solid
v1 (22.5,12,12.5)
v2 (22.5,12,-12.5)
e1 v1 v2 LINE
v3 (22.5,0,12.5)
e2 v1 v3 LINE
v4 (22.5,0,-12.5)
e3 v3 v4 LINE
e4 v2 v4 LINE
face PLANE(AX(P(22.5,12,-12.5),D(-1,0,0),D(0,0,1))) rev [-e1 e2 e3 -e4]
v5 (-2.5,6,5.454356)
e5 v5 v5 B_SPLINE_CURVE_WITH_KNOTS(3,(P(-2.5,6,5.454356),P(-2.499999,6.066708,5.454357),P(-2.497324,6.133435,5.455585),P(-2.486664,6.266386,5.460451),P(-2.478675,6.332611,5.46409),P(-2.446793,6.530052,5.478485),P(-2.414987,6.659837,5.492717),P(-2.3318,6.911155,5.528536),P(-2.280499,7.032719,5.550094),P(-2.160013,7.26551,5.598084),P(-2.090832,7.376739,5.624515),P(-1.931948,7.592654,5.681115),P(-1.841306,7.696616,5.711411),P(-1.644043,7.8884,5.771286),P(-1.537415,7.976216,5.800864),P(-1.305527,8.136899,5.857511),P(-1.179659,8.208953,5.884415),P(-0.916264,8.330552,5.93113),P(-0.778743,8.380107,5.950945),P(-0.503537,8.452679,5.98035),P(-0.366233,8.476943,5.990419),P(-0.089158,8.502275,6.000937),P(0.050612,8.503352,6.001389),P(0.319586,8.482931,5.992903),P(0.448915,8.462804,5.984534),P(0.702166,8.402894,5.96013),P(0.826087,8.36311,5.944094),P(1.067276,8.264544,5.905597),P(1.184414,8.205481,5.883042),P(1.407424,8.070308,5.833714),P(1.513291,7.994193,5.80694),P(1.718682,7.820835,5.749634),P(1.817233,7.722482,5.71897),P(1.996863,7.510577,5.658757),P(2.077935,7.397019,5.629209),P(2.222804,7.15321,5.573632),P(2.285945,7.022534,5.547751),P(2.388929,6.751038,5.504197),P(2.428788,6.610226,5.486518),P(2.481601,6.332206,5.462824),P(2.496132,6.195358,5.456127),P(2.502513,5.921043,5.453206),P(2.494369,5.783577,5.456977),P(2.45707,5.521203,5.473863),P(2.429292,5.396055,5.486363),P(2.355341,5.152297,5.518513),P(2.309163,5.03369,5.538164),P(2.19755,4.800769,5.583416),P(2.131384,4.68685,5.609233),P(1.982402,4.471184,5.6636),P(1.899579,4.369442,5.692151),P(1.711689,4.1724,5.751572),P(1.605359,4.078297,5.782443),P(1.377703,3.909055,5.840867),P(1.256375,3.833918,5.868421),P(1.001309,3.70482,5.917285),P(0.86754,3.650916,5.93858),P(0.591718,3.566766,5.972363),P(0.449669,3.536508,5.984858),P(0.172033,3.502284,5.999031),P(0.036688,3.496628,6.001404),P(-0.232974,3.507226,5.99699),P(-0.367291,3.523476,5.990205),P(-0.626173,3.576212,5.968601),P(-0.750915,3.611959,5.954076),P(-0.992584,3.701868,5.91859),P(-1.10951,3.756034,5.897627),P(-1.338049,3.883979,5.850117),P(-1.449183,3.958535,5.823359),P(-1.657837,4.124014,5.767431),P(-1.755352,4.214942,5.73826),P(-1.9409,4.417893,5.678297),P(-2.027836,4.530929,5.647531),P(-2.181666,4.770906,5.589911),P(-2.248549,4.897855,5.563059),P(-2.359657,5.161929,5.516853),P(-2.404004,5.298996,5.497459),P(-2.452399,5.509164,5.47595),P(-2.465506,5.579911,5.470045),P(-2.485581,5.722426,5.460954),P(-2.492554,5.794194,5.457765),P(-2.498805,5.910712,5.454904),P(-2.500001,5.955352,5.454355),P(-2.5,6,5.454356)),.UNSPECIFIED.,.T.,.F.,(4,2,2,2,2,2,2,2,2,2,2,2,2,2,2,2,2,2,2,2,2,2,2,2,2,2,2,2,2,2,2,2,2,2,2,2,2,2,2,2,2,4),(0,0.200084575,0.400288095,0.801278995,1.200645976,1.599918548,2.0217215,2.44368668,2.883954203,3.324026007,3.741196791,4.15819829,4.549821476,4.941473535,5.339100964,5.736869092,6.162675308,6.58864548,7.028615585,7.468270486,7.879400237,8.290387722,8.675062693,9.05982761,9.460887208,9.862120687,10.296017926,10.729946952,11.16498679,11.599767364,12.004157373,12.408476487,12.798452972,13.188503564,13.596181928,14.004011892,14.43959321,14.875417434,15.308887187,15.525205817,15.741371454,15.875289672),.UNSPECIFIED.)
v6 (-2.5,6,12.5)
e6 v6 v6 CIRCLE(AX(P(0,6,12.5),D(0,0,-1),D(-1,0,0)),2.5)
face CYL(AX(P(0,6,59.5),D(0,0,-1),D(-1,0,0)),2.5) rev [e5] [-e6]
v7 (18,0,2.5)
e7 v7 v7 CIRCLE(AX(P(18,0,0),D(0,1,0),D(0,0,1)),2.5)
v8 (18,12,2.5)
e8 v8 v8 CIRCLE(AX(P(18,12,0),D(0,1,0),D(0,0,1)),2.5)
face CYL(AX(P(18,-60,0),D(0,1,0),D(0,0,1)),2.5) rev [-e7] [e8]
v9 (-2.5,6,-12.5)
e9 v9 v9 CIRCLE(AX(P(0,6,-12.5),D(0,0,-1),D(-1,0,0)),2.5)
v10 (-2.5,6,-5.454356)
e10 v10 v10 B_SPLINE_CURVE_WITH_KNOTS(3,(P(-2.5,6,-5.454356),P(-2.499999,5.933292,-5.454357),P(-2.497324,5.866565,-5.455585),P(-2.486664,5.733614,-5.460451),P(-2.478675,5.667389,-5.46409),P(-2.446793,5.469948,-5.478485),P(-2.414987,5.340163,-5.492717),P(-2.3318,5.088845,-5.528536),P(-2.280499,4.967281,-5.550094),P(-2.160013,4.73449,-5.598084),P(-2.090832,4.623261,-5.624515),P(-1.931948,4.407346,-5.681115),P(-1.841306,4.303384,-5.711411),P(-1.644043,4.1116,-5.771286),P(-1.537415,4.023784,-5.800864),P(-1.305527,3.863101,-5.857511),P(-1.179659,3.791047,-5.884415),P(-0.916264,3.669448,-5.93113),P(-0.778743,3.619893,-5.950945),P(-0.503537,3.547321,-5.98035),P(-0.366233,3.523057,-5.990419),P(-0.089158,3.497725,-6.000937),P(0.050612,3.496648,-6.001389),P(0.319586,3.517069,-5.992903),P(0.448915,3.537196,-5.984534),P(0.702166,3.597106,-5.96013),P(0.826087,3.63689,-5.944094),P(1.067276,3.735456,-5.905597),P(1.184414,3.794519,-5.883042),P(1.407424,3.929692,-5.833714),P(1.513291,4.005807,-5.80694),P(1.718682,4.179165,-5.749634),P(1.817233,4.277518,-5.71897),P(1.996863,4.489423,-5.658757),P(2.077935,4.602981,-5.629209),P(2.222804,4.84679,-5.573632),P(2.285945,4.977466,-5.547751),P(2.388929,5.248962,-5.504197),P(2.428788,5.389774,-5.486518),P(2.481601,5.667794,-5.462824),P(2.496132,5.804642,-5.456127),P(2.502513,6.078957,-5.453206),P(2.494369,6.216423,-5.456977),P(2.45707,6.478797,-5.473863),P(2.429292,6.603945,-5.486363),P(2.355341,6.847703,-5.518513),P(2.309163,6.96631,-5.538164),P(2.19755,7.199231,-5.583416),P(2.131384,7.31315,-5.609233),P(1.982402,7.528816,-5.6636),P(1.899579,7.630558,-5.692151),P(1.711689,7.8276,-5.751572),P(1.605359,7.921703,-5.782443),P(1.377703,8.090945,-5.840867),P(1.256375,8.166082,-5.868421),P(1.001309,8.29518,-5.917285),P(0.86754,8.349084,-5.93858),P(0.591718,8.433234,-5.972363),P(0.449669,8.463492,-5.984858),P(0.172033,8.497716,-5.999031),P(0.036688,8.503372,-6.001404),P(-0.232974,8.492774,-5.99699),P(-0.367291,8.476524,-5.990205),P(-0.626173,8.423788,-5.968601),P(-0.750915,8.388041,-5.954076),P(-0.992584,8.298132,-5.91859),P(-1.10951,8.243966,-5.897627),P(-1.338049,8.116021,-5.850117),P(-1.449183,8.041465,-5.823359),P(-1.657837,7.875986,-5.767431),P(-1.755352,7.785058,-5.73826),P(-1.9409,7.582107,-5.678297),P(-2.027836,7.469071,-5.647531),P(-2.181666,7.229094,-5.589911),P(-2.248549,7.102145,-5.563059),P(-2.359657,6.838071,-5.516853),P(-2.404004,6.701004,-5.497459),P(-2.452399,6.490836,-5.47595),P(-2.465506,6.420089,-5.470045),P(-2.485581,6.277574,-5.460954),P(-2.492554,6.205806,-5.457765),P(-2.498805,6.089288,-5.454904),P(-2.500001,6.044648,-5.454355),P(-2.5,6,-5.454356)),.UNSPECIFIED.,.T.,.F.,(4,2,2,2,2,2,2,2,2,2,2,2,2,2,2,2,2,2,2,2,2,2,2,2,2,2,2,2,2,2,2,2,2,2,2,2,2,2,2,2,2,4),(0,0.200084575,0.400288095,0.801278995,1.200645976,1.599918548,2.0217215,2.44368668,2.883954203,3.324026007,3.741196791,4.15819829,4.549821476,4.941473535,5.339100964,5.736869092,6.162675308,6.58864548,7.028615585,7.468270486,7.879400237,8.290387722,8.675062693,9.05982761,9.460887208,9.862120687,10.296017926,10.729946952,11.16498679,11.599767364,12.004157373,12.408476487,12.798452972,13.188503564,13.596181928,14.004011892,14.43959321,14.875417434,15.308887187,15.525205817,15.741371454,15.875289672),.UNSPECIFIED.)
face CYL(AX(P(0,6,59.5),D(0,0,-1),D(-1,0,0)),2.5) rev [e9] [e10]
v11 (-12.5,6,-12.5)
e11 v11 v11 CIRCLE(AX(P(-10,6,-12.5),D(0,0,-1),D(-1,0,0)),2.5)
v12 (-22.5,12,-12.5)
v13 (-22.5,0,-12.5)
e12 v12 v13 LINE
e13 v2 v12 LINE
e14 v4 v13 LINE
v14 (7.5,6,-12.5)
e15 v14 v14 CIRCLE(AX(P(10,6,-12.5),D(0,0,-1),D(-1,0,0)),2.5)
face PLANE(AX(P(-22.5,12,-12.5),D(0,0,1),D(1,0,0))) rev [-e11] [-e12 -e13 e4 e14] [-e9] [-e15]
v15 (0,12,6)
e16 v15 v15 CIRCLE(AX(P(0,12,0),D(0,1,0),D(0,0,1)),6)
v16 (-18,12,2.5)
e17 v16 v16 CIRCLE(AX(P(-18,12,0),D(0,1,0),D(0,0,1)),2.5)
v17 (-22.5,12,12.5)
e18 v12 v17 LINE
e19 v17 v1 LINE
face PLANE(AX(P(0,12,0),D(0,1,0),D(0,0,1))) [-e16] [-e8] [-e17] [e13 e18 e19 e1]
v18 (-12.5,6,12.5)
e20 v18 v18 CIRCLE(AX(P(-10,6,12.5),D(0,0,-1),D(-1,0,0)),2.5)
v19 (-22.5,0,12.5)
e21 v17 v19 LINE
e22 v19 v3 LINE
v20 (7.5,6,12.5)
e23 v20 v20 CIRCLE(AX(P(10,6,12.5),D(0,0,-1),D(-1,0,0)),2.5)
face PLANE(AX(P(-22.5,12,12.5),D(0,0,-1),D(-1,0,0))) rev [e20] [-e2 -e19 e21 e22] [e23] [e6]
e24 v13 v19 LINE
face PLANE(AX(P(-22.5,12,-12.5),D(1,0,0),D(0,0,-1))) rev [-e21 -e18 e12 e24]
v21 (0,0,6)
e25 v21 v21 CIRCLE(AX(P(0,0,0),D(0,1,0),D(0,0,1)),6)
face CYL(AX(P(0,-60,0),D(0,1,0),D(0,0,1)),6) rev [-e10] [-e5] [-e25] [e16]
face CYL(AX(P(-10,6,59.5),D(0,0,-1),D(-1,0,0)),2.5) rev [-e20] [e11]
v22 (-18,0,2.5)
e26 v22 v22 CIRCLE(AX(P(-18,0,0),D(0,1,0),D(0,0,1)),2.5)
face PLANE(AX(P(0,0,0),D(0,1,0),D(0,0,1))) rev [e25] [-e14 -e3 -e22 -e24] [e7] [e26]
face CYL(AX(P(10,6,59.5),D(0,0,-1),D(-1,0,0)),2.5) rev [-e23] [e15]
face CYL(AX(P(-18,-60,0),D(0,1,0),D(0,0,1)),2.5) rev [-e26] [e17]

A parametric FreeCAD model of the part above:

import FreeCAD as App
import Part
import Sketcher
Q = App.Units.Quantity

doc = App.newDocument("Part")
params = doc.addObject("Spreadsheet::Sheet", "Params")
for row, (alias, value) in enumerate([
    ("sketch1_width", "45 mm"),
    ("sketch1_height", "25 mm"),
    ("pad1_length", "12 mm"),
    ("sketch2_diameter", "5 mm"),
    ("pocket1_length", "12 mm"),
    ("sketch3_diameter", "5 mm"),
    ("pocket2_length", "72 mm"),
    ("sketch4_diameter", "5 mm"),
    ("pocket3_length", "72 mm"),
    ("sketch5_diameter", "12 mm"),
    ("pocket4_length", "72 mm"),
    ("sketch6_diameter", "5 mm"),
    ("pocket5_length", "72 mm"),
    ("sketch7_diameter", "5 mm"),
    ("pad2_length", "12 mm"),
], start=1):
    params.set(f"A{row}", alias)
    params.set(f"B{row}", "=" + value)
    params.setAlias(f"B{row}", alias)

body = doc.addObject("PartDesign::Body", "Body")

# Sketch on XZ plane
sketch1 = doc.addObject("Sketcher::SketchObject", "Sketch")
body.addObject(sketch1)
sketch1.AttachmentSupport = (doc.XZ_Plane, [""])
sketch1.MapMode = "FlatFace"
sketch1.addGeometry(Part.LineSegment(App.Vector(-22, -12, 0), App.Vector(-22, 12, 0)), False)
sketch1.addGeometry(Part.LineSegment(App.Vector(-22, 12, 0), App.Vector(22, 12, 0)), False)
sketch1.addGeometry(Part.LineSegment(App.Vector(22, 12, 0), App.Vector(22, -12, 0)), False)
sketch1.addGeometry(Part.LineSegment(App.Vector(22, -12, 0), App.Vector(-22, -12, 0)), False)
sketch1.addConstraint(Sketcher.Constraint("Coincident", 0, 2, 1, 1))
sketch1.addConstraint(Sketcher.Constraint("Coincident", 1, 2, 2, 1))
sketch1.addConstraint(Sketcher.Constraint("Coincident", 2, 2, 3, 1))
sketch1.addConstraint(Sketcher.Constraint("Coincident", 3, 2, 0, 1))
sketch1.addConstraint(Sketcher.Constraint("Vertical", 0))
sketch1.addConstraint(Sketcher.Constraint("Horizontal", 1))
sketch1.addConstraint(Sketcher.Constraint("Vertical", 2))
sketch1.addConstraint(Sketcher.Constraint("Horizontal", 3))
sketch1.addConstraint(Sketcher.Constraint("Symmetric", 0, 2, 2, 2, -1, 1))
sketch1.addConstraint(Sketcher.Constraint("DistanceX", 1, 1, 1, 2, Q("45 mm")))
sketch1.addConstraint(Sketcher.Constraint("DistanceY", 0, 1, 0, 2, Q("25 mm")))
sketch1.setExpression("Constraints[9]", "Params.sketch1_width")
sketch1.setExpression("Constraints[10]", "Params.sketch1_height")
pad1 = doc.addObject("PartDesign::Pad", "Pad")
body.addObject(pad1)
pad1.Profile = sketch1
pad1.setExpression("Length", "Params.pad1_length")
pad1.Reversed = True

# Sketch on XZ plane
sketch2 = doc.addObject("Sketcher::SketchObject", "Sketch001")
body.addObject(sketch2)
sketch2.AttachmentSupport = (doc.XZ_Plane, [""])
sketch2.MapMode = "FlatFace"
sketch2.AttachmentOffset = App.Placement(App.Vector(0, 0, -12), App.Rotation())
sketch2.addGeometry(Part.Circle(App.Vector(-18, 7.5, 0), App.Vector(0, 0, 1), 2.5), False)
sketch2.addGeometry(Part.Circle(App.Vector(-18, -7.5, 0), App.Vector(0, 0, 1), 2.5), False)
sketch2.addGeometry(Part.Circle(App.Vector(18, 7.5, 0), App.Vector(0, 0, 1), 2.5), False)
sketch2.addGeometry(Part.Circle(App.Vector(18, -7.5, 0), App.Vector(0, 0, 1), 2.5), False)
sketch2.addConstraint(Sketcher.Constraint("Equal", 0, 1))
sketch2.addConstraint(Sketcher.Constraint("Equal", 1, 2))
sketch2.addConstraint(Sketcher.Constraint("Equal", 2, 3))
sketch2.addConstraint(Sketcher.Constraint("Symmetric", 1, 3, 2, 3, -1, 1))
sketch2.addConstraint(Sketcher.Constraint("Symmetric", 0, 3, 3, 3, -1, 1))
sketch2.addConstraint(Sketcher.Constraint("Symmetric", 0, 3, 2, 3, -2))
sketch2.addConstraint(Sketcher.Constraint("Diameter", 0, Q("5 mm")))
sketch2.addConstraint(Sketcher.Constraint("DistanceX", 0, 3, -1, 1, Q("18 mm")))
sketch2.addConstraint(Sketcher.Constraint("DistanceY", 1, 3, 0, 3, Q("15 mm")))
sketch2.setExpression("Constraints[6]", "Params.sketch2_diameter")
pocket1 = doc.addObject("PartDesign::Pocket", "Pocket")
body.addObject(pocket1)
pocket1.Profile = sketch2
pocket1.setExpression("Length", "Params.pocket1_length")
pocket1.Reversed = True

# Sketch on XY plane
sketch3 = doc.addObject("Sketcher::SketchObject", "Sketch002")
body.addObject(sketch3)
sketch3.AttachmentSupport = (doc.XY_Plane, [""])
sketch3.MapMode = "FlatFace"
sketch3.AttachmentOffset = App.Placement(App.Vector(0, 0, -12.5), App.Rotation())
sketch3.addGeometry(Part.Circle(App.Vector(0, 6, 0), App.Vector(0, 0, 1), 2.5), False)
sketch3.addConstraint(Sketcher.Constraint("PointOnObject", 0, 3, -2))
sketch3.addConstraint(Sketcher.Constraint("Diameter", 0, Q("5 mm")))
sketch3.addConstraint(Sketcher.Constraint("DistanceY", -1, 1, 0, 3, Q("6 mm")))
sketch3.setExpression("Constraints[1]", "Params.sketch3_diameter")
pocket2 = doc.addObject("PartDesign::Pocket", "Pocket001")
body.addObject(pocket2)
pocket2.Profile = sketch3
pocket2.setExpression("Length", "Params.pocket2_length")
pocket2.Reversed = True

# Sketch on XY plane
sketch4 = doc.addObject("Sketcher::SketchObject", "Sketch003")
body.addObject(sketch4)
sketch4.AttachmentSupport = (doc.XY_Plane, [""])
sketch4.MapMode = "FlatFace"
sketch4.AttachmentOffset = App.Placement(App.Vector(0, 0, -12.5), App.Rotation())
sketch4.addGeometry(Part.Circle(App.Vector(-10, 6, 0), App.Vector(0, 0, 1), 2.5), False)
sketch4.addGeometry(Part.Circle(App.Vector(10, 6, 0), App.Vector(0, 0, 1), 2.5), False)
sketch4.addConstraint(Sketcher.Constraint("Equal", 0, 1))
sketch4.addConstraint(Sketcher.Constraint("Symmetric", 0, 3, 1, 3, -2))
sketch4.addConstraint(Sketcher.Constraint("Diameter", 0, Q("5 mm")))
sketch4.addConstraint(Sketcher.Constraint("DistanceX", 0, 3, -1, 1, Q("10 mm")))
sketch4.addConstraint(Sketcher.Constraint("DistanceY", -1, 1, 0, 3, Q("6 mm")))
sketch4.setExpression("Constraints[2]", "Params.sketch4_diameter")
pocket3 = doc.addObject("PartDesign::Pocket", "Pocket002")
body.addObject(pocket3)
pocket3.Profile = sketch4
pocket3.setExpression("Length", "Params.pocket3_length")
pocket3.Reversed = True

# Sketch on XZ plane
sketch5 = doc.addObject("Sketcher::SketchObject", "Sketch004")
body.addObject(sketch5)
sketch5.AttachmentSupport = (doc.XZ_Plane, [""])
sketch5.MapMode = "FlatFace"
sketch5.AttachmentOffset = App.Placement(App.Vector(0, 0, -12), App.Rotation())
sketch5.addGeometry(Part.Circle(App.Vector(0, 0, 0), App.Vector(0, 0, 1), 6), False)
sketch5.addConstraint(Sketcher.Constraint("Coincident", 0, 3, -1, 1))
sketch5.addConstraint(Sketcher.Constraint("Diameter", 0, Q("12 mm")))
sketch5.setExpression("Constraints[1]", "Params.sketch5_diameter")
pocket4 = doc.addObject("PartDesign::Pocket", "Pocket003")
body.addObject(pocket4)
pocket4.Profile = sketch5
pocket4.setExpression("Length", "Params.pocket4_length")
pocket4.Reversed = True

# Sketch on XZ plane
sketch6 = doc.addObject("Sketcher::SketchObject", "Sketch005")
body.addObject(sketch6)
sketch6.AttachmentSupport = (doc.XZ_Plane, [""])
sketch6.MapMode = "FlatFace"
sketch6.AttachmentOffset = App.Placement(App.Vector(0, 0, -12), App.Rotation())
sketch6.addGeometry(Part.Circle(App.Vector(-18, 0, 0), App.Vector(0, 0, 1), 2.5), False)
sketch6.addGeometry(Part.Circle(App.Vector(18, 0, 0), App.Vector(0, 0, 1), 2.5), False)
sketch6.addConstraint(Sketcher.Constraint("Equal", 0, 1))
sketch6.addConstraint(Sketcher.Constraint("Symmetric", 0, 3, 1, 3, -1, 1))
sketch6.addConstraint(Sketcher.Constraint("PointOnObject", 0, 3, -1))
sketch6.addConstraint(Sketcher.Constraint("Diameter", 0, Q("5 mm")))
sketch6.addConstraint(Sketcher.Constraint("DistanceX", 0, 3, -1, 1, Q("18 mm")))
sketch6.setExpression("Constraints[3]", "Params.sketch6_diameter")
pocket5 = doc.addObject("PartDesign::Pocket", "Pocket004")
body.addObject(pocket5)
pocket5.Profile = sketch6
pocket5.setExpression("Length", "Params.pocket5_length")
pocket5.Reversed = True

# Sketch on XZ plane
sketch7 = doc.addObject("Sketcher::SketchObject", "Sketch006")
body.addObject(sketch7)
sketch7.AttachmentSupport = (doc.XZ_Plane, [""])
sketch7.MapMode = "FlatFace"
sketch7.AttachmentOffset = App.Placement(App.Vector(0, 0, -12), App.Rotation())
sketch7.addGeometry(Part.Circle(App.Vector(18, 7.5, 0), App.Vector(0, 0, 1), 2.5), False)
sketch7.addGeometry(Part.Circle(App.Vector(18, -7.5, 0), App.Vector(0, 0, 1), 2.5), False)
sketch7.addGeometry(Part.Circle(App.Vector(-18, 7.5, 0), App.Vector(0, 0, 1), 2.5), False)
sketch7.addGeometry(Part.Circle(App.Vector(-18, -7.5, 0), App.Vector(0, 0, 1), 2.5), False)
sketch7.addConstraint(Sketcher.Constraint("Equal", 0, 1))
sketch7.addConstraint(Sketcher.Constraint("Equal", 1, 2))
sketch7.addConstraint(Sketcher.Constraint("Equal", 2, 3))
sketch7.addConstraint(Sketcher.Constraint("Symmetric", 1, 3, 2, 3, -1, 1))
sketch7.addConstraint(Sketcher.Constraint("Symmetric", 0, 3, 3, 3, -1, 1))
sketch7.addConstraint(Sketcher.Constraint("Symmetric", 0, 3, 2, 3, -2))
sketch7.addConstraint(Sketcher.Constraint("Diameter", 0, Q("5 mm")))
sketch7.addConstraint(Sketcher.Constraint("DistanceX", -1, 1, 0, 3, Q("18 mm")))
sketch7.addConstraint(Sketcher.Constraint("DistanceY", 1, 3, 0, 3, Q("15 mm")))
sketch7.setExpression("Constraints[6]", "Params.sketch7_diameter")
pad2 = doc.addObject("PartDesign::Pad", "Pad001")
body.addObject(pad2)
pad2.Profile = sketch7
pad2.setExpression("Length", "Params.pad2_length")

doc.recompute()
